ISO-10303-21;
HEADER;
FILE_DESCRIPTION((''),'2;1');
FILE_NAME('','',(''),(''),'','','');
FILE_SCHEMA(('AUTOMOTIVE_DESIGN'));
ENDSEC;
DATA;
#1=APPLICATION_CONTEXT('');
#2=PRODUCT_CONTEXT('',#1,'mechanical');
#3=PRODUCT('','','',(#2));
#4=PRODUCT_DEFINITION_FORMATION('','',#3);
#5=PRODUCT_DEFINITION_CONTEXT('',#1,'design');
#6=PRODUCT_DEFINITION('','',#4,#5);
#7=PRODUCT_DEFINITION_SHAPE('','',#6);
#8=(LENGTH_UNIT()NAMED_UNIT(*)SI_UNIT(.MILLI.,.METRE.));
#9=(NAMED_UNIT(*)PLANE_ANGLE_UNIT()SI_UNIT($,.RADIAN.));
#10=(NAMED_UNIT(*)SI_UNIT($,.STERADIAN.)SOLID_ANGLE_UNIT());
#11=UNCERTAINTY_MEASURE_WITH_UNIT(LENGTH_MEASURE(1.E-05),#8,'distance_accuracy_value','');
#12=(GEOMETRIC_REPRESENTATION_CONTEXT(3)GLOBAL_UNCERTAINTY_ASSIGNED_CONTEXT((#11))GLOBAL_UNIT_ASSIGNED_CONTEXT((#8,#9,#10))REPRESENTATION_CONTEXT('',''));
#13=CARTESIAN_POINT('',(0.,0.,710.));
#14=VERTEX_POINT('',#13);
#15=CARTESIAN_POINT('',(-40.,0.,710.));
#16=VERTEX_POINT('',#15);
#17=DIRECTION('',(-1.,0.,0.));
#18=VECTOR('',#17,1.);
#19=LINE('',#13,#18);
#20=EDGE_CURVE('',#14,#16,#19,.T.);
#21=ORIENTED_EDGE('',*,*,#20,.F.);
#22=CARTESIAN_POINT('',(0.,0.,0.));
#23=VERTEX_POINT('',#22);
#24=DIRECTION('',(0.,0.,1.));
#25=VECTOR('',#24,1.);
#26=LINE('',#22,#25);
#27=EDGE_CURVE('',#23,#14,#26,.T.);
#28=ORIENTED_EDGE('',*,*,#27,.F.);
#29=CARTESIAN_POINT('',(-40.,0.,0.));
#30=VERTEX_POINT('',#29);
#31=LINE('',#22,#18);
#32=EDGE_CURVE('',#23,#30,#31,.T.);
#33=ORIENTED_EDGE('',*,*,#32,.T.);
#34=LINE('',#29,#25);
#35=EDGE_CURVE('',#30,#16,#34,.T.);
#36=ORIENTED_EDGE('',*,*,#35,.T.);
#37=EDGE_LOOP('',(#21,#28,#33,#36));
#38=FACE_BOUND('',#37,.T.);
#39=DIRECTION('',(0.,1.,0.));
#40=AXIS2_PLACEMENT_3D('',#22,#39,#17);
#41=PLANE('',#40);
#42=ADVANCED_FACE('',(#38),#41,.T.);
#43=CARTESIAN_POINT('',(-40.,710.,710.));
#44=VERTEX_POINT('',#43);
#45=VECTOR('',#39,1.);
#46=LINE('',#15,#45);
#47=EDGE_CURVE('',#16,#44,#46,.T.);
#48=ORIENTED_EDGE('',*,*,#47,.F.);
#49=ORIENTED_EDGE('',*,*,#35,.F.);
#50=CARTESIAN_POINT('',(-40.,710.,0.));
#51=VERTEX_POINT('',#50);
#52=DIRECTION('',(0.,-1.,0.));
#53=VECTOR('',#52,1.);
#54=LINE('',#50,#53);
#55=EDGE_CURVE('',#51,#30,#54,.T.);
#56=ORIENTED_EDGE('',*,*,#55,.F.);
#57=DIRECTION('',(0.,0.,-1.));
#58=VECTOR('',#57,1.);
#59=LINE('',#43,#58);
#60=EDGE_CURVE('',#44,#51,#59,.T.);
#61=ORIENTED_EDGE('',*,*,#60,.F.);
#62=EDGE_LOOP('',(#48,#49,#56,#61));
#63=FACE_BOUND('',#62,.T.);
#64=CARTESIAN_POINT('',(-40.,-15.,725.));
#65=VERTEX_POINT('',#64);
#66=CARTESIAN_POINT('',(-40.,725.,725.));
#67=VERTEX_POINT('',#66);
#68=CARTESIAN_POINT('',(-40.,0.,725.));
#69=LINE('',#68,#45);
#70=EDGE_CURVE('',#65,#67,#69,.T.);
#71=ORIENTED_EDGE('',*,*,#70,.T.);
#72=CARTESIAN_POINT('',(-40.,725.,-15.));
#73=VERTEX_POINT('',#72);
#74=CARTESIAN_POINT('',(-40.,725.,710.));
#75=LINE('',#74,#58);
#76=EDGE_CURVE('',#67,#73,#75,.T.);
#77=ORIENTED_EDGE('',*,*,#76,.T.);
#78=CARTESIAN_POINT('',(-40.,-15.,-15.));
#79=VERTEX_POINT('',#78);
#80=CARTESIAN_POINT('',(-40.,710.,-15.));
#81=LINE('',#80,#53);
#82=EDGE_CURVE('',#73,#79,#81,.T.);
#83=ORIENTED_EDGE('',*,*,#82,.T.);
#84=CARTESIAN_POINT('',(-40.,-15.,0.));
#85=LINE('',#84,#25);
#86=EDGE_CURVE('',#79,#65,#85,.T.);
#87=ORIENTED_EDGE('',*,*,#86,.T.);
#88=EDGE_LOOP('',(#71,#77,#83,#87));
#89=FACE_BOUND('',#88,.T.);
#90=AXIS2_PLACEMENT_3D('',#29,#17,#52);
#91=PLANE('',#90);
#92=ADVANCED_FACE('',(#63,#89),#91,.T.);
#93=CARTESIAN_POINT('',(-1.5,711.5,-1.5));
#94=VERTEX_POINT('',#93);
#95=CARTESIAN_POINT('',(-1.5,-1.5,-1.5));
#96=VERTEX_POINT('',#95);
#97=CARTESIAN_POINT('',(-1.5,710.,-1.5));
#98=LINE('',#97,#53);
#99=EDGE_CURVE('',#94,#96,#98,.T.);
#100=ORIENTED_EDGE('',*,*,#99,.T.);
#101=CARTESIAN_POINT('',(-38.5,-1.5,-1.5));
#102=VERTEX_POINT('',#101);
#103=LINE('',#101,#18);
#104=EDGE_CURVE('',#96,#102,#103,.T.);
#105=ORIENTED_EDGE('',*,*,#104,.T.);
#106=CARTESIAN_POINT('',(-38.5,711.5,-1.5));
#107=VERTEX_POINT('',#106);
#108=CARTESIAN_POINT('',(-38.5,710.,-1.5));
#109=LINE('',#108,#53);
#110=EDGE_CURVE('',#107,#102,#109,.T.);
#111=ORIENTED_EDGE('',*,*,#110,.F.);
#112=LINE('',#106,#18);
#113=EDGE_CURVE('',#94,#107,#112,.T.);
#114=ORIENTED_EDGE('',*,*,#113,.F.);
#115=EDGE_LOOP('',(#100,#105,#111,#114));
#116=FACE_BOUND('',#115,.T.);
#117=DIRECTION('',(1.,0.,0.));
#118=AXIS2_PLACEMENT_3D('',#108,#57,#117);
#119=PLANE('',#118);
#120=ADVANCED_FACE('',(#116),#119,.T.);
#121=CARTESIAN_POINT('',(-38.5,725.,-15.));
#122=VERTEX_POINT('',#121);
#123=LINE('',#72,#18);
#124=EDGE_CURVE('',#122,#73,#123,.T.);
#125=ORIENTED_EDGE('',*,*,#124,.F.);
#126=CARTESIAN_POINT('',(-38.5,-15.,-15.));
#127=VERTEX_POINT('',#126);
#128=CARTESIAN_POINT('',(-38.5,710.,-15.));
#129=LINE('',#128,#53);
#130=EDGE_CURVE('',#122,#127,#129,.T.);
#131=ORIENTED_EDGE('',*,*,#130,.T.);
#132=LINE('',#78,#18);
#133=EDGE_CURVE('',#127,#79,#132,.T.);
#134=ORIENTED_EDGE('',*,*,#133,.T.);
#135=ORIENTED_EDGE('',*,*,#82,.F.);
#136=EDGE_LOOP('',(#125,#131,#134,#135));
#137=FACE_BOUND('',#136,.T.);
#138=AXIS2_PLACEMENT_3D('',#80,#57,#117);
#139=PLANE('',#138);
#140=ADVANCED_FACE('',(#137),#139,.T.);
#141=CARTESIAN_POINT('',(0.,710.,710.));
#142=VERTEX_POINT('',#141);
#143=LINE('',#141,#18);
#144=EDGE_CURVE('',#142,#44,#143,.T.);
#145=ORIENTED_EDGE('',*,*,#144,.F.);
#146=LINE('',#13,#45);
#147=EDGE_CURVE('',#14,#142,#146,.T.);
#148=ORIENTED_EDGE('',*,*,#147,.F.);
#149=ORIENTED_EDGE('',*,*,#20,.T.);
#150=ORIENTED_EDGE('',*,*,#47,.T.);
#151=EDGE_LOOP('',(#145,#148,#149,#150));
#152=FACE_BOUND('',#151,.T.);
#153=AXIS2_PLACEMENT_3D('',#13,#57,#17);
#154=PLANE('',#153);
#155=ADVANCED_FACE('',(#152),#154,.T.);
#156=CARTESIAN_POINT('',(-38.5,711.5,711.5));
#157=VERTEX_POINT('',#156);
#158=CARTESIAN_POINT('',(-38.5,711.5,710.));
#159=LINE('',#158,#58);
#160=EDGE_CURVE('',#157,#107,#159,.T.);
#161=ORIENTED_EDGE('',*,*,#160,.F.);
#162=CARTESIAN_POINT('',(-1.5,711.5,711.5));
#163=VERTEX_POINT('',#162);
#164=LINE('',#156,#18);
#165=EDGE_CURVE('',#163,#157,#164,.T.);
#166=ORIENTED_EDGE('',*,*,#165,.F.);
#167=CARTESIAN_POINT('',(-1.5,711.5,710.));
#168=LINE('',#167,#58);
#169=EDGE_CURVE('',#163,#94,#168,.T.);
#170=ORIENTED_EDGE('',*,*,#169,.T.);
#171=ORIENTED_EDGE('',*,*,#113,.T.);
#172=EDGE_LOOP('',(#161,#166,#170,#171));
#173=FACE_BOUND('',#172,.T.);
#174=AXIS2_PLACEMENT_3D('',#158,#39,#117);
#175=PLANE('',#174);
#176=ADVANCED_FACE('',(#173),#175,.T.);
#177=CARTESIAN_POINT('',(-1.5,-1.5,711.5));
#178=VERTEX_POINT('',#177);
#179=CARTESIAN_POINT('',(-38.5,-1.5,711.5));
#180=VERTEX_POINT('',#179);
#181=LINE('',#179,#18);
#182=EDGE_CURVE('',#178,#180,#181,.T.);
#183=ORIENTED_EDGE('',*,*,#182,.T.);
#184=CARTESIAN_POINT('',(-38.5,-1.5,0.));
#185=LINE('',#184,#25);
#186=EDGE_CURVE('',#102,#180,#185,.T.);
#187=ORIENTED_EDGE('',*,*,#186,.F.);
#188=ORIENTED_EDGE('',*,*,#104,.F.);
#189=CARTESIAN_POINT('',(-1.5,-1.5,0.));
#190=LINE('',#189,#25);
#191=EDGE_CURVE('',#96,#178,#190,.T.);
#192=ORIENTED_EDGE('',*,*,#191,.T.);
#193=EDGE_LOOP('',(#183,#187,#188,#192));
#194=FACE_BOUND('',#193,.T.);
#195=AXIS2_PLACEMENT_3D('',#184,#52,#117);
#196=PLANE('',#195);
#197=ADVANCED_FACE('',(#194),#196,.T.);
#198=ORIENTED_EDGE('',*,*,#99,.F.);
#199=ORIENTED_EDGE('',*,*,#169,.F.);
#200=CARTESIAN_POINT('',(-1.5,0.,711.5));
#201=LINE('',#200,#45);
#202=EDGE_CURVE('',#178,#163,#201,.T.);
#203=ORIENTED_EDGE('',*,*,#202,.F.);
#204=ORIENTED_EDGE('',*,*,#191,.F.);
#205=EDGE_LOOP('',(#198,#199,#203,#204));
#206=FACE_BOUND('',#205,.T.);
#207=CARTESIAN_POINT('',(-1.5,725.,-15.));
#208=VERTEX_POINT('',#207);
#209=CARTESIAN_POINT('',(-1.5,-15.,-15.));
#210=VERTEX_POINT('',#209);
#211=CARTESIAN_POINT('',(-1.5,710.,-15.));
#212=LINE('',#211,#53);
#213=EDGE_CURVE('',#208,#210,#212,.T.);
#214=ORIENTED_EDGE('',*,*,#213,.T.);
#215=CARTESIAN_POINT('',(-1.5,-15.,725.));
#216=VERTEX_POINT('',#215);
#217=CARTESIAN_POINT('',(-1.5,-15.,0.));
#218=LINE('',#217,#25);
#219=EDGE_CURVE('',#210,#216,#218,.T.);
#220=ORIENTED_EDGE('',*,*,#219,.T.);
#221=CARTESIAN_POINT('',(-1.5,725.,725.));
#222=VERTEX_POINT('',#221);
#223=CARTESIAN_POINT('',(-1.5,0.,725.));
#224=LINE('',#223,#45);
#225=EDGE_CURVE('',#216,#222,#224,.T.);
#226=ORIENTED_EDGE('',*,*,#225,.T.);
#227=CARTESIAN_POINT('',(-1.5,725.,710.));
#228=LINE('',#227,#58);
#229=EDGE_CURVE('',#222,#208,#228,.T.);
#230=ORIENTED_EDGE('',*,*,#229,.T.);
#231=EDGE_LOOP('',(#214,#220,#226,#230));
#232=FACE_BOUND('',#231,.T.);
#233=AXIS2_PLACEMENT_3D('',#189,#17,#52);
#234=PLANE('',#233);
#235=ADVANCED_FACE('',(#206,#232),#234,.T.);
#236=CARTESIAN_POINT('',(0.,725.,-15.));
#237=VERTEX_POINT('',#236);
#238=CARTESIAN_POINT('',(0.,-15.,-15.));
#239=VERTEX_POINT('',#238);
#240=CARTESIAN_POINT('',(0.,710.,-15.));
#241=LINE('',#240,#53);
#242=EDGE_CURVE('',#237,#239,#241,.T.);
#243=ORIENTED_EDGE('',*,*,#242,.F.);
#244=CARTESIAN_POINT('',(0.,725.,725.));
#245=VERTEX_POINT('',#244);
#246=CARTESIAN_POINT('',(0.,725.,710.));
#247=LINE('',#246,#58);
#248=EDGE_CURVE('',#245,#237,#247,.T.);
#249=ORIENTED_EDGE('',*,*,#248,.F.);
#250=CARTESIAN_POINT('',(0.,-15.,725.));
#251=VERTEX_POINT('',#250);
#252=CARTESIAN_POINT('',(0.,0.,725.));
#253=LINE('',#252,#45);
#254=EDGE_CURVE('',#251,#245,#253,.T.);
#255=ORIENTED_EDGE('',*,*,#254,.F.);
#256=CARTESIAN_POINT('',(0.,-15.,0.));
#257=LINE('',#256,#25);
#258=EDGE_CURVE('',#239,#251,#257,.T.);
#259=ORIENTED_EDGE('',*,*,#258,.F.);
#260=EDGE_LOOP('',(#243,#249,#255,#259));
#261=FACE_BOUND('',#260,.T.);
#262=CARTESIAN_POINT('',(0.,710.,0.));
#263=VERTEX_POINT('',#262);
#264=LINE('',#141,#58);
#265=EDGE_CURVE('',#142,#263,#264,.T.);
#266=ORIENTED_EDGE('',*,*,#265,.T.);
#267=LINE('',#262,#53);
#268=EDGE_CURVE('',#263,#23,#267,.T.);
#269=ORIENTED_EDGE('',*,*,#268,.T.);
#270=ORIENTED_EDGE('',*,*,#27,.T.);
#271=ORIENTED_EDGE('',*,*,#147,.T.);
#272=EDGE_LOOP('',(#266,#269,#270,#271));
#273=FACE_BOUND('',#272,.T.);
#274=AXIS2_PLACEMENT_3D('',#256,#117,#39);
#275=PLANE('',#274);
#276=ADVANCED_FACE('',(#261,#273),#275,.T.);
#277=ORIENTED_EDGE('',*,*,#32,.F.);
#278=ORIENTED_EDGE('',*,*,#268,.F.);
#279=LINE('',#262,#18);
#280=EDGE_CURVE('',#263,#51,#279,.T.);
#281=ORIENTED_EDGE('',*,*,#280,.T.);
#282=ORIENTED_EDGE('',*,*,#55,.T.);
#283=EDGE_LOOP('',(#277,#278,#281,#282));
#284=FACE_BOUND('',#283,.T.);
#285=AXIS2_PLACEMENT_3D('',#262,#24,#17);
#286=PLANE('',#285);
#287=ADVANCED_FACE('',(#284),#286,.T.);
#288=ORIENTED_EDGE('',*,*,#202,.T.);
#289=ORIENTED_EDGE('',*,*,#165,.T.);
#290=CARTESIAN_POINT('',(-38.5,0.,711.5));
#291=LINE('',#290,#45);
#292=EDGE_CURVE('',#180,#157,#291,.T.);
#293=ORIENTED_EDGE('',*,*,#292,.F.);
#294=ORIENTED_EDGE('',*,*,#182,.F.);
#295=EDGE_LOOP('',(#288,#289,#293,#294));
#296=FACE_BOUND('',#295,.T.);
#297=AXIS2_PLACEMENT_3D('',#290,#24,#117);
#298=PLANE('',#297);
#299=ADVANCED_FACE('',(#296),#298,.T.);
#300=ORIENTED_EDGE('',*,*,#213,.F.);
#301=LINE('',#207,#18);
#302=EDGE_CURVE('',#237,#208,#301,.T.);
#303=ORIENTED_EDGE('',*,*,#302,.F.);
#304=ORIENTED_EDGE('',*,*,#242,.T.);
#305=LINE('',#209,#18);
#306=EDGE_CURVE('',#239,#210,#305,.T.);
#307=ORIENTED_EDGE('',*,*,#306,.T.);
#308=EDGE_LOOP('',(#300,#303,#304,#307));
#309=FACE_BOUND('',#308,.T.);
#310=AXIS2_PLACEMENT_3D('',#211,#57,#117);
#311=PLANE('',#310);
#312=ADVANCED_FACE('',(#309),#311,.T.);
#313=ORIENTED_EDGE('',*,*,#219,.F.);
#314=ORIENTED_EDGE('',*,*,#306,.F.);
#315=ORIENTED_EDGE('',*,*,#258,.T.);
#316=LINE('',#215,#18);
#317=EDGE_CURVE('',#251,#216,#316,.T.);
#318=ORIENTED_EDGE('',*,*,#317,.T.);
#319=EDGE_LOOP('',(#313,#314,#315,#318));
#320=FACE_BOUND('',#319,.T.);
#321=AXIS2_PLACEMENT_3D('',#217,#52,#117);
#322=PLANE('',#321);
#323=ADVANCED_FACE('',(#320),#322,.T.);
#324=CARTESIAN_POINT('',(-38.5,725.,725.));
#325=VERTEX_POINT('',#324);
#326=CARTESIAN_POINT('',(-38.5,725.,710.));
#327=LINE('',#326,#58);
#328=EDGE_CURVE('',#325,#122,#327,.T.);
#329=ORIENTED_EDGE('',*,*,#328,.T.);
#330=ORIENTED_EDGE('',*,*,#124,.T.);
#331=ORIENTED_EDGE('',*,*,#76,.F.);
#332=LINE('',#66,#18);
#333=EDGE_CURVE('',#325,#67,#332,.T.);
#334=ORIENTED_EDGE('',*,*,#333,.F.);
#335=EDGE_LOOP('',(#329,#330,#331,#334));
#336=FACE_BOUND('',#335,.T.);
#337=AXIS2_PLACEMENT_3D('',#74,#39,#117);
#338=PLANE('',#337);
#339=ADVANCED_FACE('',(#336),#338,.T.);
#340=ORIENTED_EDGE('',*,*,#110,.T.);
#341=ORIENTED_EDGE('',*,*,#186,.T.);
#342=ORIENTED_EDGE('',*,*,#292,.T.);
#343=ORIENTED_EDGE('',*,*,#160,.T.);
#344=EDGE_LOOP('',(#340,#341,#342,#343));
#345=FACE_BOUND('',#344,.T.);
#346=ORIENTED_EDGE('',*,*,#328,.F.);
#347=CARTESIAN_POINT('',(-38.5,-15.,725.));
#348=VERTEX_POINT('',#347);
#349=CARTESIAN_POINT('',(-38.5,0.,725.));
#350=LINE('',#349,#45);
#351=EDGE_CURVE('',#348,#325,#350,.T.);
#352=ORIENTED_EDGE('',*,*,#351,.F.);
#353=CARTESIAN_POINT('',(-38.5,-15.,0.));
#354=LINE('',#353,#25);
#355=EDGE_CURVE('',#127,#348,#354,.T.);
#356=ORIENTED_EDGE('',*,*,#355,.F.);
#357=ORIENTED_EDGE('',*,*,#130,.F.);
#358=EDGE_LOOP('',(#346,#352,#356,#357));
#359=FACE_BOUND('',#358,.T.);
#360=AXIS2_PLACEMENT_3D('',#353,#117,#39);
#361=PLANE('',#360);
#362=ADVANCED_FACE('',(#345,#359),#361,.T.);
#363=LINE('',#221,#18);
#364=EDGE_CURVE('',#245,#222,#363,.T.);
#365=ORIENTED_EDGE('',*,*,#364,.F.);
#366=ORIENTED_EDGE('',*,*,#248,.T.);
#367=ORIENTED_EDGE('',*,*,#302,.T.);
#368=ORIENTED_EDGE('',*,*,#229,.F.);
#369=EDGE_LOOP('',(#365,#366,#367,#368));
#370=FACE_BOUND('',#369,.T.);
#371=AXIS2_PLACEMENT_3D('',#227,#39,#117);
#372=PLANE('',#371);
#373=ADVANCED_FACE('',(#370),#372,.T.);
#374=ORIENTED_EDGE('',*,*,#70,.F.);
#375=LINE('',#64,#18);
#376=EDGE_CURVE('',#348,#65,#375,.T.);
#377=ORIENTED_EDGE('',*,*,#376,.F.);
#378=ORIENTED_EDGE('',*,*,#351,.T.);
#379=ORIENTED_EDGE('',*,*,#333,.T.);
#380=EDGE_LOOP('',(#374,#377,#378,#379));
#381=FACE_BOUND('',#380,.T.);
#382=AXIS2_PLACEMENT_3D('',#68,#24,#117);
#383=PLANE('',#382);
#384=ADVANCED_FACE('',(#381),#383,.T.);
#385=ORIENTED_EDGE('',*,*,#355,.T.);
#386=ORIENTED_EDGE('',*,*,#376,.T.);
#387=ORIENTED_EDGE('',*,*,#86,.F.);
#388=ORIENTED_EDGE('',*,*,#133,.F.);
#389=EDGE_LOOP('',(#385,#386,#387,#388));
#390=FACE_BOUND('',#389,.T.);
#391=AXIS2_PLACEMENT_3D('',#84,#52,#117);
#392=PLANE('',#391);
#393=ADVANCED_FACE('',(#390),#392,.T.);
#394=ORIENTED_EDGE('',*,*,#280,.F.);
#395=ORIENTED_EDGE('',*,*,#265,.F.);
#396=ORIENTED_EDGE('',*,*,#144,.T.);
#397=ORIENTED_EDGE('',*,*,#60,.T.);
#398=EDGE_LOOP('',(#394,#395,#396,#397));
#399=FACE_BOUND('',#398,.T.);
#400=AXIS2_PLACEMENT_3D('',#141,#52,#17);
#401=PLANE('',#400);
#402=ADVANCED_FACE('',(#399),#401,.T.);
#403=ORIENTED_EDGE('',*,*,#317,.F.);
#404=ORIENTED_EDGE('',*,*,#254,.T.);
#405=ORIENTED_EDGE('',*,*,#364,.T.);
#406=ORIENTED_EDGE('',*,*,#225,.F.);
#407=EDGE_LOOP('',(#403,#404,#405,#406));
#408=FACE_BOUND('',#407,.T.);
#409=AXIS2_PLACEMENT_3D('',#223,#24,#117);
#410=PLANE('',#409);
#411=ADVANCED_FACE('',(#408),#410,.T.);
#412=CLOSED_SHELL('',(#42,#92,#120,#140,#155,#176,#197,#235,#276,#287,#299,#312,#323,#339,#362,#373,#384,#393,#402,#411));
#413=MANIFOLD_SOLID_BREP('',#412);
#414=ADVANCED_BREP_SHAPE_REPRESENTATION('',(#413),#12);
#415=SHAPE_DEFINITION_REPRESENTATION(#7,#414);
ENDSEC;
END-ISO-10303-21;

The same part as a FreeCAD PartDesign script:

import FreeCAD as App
import Part
import Sketcher
Q = App.Units.Quantity

doc = App.newDocument("Part")
body = doc.addObject("PartDesign::Body", "Body")

sketch1 = body.newObject("Sketcher::SketchObject", "Sketch")
sketch1.AttachmentSupport = (doc.getObject("XY_Plane"), [""])
sketch1.MapMode = "FlatFace"
sketch1.addGeometry(Part.LineSegment(App.Vector(0, -15, 0), App.Vector(0, 0, 0)), False)
sketch1.addGeometry(Part.LineSegment(App.Vector(0, 0, 0), App.Vector(-40, 0, 0)), False)
sketch1.addGeometry(Part.LineSegment(App.Vector(-40, 0, 0), App.Vector(-40, -15, 0)), False)
sketch1.addGeometry(Part.LineSegment(App.Vector(-40, -15, 0), App.Vector(-38.5, -15, 0)), False)
sketch1.addGeometry(Part.LineSegment(App.Vector(-38.5, -15, 0), App.Vector(-38.5, -1.5, 0)), False)
sketch1.addGeometry(Part.LineSegment(App.Vector(-38.5, -1.5, 0), App.Vector(-1.5, -1.5, 0)), False)
sketch1.addGeometry(Part.LineSegment(App.Vector(-1.5, -1.5, 0), App.Vector(-1.5, -15, 0)), False)
sketch1.addGeometry(Part.LineSegment(App.Vector(-1.5, -15, 0), App.Vector(0, -15, 0)), False)
sketch1.addConstraint(Sketcher.Constraint("Coincident", 0, 2, 1, 1))
sketch1.addConstraint(Sketcher.Constraint("Coincident", 1, 2, 2, 1))
sketch1.addConstraint(Sketcher.Constraint("Coincident", 2, 2, 3, 1))
sketch1.addConstraint(Sketcher.Constraint("Coincident", 3, 2, 4, 1))
sketch1.addConstraint(Sketcher.Constraint("Coincident", 4, 2, 5, 1))
sketch1.addConstraint(Sketcher.Constraint("Coincident", 5, 2, 6, 1))
sketch1.addConstraint(Sketcher.Constraint("Coincident", 6, 2, 7, 1))
sketch1.addConstraint(Sketcher.Constraint("Coincident", 7, 2, 0, 1))
sketch1.addConstraint(Sketcher.Constraint("Vertical", 0))
sketch1.addConstraint(Sketcher.Constraint("Horizontal", 1))
sketch1.addConstraint(Sketcher.Constraint("Vertical", 2))
sketch1.addConstraint(Sketcher.Constraint("Horizontal", 3))
sketch1.addConstraint(Sketcher.Constraint("Vertical", 4))
sketch1.addConstraint(Sketcher.Constraint("Horizontal", 5))
sketch1.addConstraint(Sketcher.Constraint("Vertical", 6))
sketch1.addConstraint(Sketcher.Constraint("Horizontal", 7))
sketch1.addConstraint(Sketcher.Constraint("Coincident", 0, 2, -1, 1))
sketch1.addConstraint(Sketcher.Constraint("Horizontal", 3, 2, 6, 2))
sketch1.addConstraint(Sketcher.Constraint("Equal", 3, 7))
sketch1.addConstraint(Sketcher.Constraint("DistanceX", 1, 2, 1, 1, Q("40 mm")))
sketch1.addConstraint(Sketcher.Constraint("DistanceX", 5, 1, 5, 2, Q("37 mm")))
sketch1.addConstraint(Sketcher.Constraint("DistanceY", 0, 1, 0, 2, Q("15 mm")))
sketch1.addConstraint(Sketcher.Constraint("DistanceY", 4, 1, 4, 2, Q("13.5 mm")))

sketch2 = body.newObject("Sketcher::SketchObject", "Sketch001")
sketch2.AttachmentSupport = (doc.getObject("YZ_Plane"), [""])
sketch2.MapMode = "FlatFace"
sketch2.addGeometry(Part.LineSegment(App.Vector(0, 0, 0), App.Vector(0, 710, 0)), False)
sketch2.addGeometry(Part.LineSegment(App.Vector(0, 710, 0), App.Vector(710, 710, 0)), False)
sketch2.addGeometry(Part.LineSegment(App.Vector(710, 710, 0), App.Vector(710, 0, 0)), False)
sketch2.addGeometry(Part.LineSegment(App.Vector(710, 0, 0), App.Vector(0, 0, 0)), False)
sketch2.addConstraint(Sketcher.Constraint("Coincident", 0, 2, 1, 1))
sketch2.addConstraint(Sketcher.Constraint("Coincident", 1, 2, 2, 1))
sketch2.addConstraint(Sketcher.Constraint("Coincident", 2, 2, 3, 1))
sketch2.addConstraint(Sketcher.Constraint("Coincident", 3, 2, 0, 1))
sketch2.addConstraint(Sketcher.Constraint("Vertical", 0))
sketch2.addConstraint(Sketcher.Constraint("Horizontal", 1))
sketch2.addConstraint(Sketcher.Constraint("Vertical", 2))
sketch2.addConstraint(Sketcher.Constraint("Horizontal", 3))
sketch2.addConstraint(Sketcher.Constraint("Coincident", 3, 2, -1, 1))
sketch2.addConstraint(Sketcher.Constraint("Equal", 3, 0))
sketch2.addConstraint(Sketcher.Constraint("DistanceX", 1, 1, 1, 2, Q("710 mm")))
doc.recompute()

additivepipe = body.newObject("PartDesign::AdditivePipe", "AdditivePipe")
additivepipe.Profile = sketch1
additivepipe.Spine = (sketch2, ["Edge1", "Edge2", "Edge3", "Edge4"])
additivepipe.Transition = "Right corner"

doc.recompute()
